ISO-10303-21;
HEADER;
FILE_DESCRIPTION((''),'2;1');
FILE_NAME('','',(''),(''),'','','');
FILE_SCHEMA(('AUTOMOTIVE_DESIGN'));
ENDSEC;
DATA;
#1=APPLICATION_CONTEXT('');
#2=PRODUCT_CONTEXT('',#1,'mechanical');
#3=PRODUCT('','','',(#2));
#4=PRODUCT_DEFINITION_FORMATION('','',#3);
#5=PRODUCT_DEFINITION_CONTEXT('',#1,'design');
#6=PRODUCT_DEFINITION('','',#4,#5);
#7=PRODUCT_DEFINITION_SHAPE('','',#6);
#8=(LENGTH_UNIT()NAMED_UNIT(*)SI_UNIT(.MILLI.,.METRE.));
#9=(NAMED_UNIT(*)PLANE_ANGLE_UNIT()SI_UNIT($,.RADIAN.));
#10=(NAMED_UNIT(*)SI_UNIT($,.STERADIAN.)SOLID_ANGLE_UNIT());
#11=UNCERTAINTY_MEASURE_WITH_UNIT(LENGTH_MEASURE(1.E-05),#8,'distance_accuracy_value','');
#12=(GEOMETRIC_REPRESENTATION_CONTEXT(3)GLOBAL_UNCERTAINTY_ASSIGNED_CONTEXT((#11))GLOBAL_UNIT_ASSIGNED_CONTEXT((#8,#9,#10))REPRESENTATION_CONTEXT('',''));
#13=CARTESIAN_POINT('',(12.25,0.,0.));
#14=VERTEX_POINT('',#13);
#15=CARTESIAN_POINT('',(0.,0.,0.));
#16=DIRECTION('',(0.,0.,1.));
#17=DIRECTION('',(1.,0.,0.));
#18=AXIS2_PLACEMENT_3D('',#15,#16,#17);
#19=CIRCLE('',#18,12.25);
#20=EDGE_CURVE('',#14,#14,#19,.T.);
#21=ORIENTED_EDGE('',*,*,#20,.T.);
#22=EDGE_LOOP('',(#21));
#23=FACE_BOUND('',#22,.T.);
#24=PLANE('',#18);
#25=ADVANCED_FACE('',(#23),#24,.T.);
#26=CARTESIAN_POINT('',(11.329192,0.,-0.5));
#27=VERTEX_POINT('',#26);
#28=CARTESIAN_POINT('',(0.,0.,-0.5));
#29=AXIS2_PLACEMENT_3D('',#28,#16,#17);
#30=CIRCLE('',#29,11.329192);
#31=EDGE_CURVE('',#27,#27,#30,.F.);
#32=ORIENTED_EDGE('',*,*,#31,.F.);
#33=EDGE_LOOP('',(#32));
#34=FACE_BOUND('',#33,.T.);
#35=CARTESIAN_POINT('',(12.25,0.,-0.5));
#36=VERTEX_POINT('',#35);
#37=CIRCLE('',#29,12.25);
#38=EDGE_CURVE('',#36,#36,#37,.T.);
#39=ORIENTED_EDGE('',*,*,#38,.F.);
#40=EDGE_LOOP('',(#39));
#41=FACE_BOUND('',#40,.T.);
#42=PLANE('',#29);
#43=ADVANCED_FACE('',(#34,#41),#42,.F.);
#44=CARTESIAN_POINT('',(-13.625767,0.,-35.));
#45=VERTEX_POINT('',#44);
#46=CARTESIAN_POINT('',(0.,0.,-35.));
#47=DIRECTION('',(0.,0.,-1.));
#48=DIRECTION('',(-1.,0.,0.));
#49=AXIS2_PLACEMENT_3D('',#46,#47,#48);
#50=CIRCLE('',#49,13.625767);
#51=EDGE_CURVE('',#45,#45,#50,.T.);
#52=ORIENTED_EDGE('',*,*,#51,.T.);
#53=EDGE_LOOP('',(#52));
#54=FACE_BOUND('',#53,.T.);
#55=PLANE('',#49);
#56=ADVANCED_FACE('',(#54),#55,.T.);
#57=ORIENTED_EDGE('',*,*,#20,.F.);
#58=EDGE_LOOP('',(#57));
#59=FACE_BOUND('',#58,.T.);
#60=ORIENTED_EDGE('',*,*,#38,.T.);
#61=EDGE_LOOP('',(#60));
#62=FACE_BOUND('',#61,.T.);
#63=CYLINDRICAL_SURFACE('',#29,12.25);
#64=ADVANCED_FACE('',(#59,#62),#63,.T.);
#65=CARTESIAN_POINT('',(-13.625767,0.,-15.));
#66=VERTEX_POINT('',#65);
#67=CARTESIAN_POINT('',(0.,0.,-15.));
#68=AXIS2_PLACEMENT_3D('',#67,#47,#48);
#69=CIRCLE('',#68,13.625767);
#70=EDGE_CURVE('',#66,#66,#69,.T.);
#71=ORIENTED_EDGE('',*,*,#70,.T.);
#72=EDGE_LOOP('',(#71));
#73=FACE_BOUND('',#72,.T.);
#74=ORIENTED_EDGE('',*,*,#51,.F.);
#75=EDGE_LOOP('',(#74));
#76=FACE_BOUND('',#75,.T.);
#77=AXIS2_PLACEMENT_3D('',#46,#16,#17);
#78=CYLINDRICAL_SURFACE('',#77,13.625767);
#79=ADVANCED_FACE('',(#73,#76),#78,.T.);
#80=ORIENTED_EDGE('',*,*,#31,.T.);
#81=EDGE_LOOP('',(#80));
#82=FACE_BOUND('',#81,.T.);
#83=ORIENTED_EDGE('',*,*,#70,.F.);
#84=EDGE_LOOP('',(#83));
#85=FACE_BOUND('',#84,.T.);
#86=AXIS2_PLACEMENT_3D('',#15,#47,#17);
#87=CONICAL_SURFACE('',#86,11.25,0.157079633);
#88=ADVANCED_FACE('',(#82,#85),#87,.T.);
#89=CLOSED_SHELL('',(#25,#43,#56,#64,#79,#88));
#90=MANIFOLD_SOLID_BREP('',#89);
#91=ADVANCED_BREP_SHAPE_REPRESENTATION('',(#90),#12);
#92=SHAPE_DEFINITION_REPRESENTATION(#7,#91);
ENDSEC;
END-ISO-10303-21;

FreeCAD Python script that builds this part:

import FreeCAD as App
import Part
import Sketcher

V = App.Vector
Q = App.Units.Quantity


def faces_at(feature, points):
    """Names of the faces that lie closest to the given points."""
    faces = feature.Shape.Faces
    near = lambda p: min(range(len(faces)), key=lambda i: faces[i].distToShape(Part.Vertex(*p))[0])
    return sorted({f"Face{near(p) + 1}" for p in points})

doc = App.newDocument("Part")
body = doc.addObject("PartDesign::Body", "Body")

sketch1 = body.newObject("Sketcher::SketchObject", "Sketch")
sketch1.AttachmentSupport = (doc.getObject("XY_Plane"), [""])
sketch1.MapMode = "FlatFace"
sketch1.addGeometry(Part.Circle(V(0, 0, 0), V(0, 0, 1), 11), False)
sketch1.addConstraint([
    Sketcher.Constraint("Coincident", 0, 3, -1, 1),
    Sketcher.Constraint("Diameter", 0, Q("22.5 mm")),
])
pad1 = body.newObject("PartDesign::Pad", "Pad")
pad1.Profile = sketch1
pad1.Length = 15
pad1.Reversed = True
doc.recompute()

draft = body.newObject("PartDesign::Draft", "Draft")
draft.Base = (pad1, faces_at(pad1, [(-11.25, 0, -7.5)]))
draft.NeutralPlane = (doc.getObject("XY_Plane"), [""])
draft.Angle = 9
draft.Reversed = False

sketch2 = body.newObject("Sketcher::SketchObject", "Sketch001")
sketch2.AttachmentSupport = (doc.getObject("XY_Plane"), [""])
sketch2.MapMode = "FlatFace"
sketch2.addGeometry(Part.Circle(V(0, 0, 0), V(0, 0, 1), 12), False)
sketch2.addConstraint([
    Sketcher.Constraint("Coincident", 0, 3, -1, 1),
    Sketcher.Constraint("Diameter", 0, Q("24.5 mm")),
])
pad2 = body.newObject("PartDesign::Pad", "Pad001")
pad2.Profile = sketch2
pad2.Length = 0.5
pad2.Reversed = True

sketch3 = body.newObject("Sketcher::SketchObject", "Sketch002")
sketch3.AttachmentSupport = (doc.getObject("XY_Plane"), [""])
sketch3.MapMode = "FlatFace"
sketch3.AttachmentOffset = App.Placement(V(0, 0, -15), App.Rotation())
sketch3.addGeometry(Part.Circle(V(0, 0, 0), V(0, 0, 1), 14), False)
sketch3.addConstraint([
    Sketcher.Constraint("Coincident", 0, 3, -1, 1),
    Sketcher.Constraint("Diameter", 0, Q("27.251533 mm")),
])
pad3 = body.newObject("PartDesign::Pad", "Pad002")
pad3.Profile = sketch3
pad3.Length = 20
pad3.Reversed = True

doc.recompute()
